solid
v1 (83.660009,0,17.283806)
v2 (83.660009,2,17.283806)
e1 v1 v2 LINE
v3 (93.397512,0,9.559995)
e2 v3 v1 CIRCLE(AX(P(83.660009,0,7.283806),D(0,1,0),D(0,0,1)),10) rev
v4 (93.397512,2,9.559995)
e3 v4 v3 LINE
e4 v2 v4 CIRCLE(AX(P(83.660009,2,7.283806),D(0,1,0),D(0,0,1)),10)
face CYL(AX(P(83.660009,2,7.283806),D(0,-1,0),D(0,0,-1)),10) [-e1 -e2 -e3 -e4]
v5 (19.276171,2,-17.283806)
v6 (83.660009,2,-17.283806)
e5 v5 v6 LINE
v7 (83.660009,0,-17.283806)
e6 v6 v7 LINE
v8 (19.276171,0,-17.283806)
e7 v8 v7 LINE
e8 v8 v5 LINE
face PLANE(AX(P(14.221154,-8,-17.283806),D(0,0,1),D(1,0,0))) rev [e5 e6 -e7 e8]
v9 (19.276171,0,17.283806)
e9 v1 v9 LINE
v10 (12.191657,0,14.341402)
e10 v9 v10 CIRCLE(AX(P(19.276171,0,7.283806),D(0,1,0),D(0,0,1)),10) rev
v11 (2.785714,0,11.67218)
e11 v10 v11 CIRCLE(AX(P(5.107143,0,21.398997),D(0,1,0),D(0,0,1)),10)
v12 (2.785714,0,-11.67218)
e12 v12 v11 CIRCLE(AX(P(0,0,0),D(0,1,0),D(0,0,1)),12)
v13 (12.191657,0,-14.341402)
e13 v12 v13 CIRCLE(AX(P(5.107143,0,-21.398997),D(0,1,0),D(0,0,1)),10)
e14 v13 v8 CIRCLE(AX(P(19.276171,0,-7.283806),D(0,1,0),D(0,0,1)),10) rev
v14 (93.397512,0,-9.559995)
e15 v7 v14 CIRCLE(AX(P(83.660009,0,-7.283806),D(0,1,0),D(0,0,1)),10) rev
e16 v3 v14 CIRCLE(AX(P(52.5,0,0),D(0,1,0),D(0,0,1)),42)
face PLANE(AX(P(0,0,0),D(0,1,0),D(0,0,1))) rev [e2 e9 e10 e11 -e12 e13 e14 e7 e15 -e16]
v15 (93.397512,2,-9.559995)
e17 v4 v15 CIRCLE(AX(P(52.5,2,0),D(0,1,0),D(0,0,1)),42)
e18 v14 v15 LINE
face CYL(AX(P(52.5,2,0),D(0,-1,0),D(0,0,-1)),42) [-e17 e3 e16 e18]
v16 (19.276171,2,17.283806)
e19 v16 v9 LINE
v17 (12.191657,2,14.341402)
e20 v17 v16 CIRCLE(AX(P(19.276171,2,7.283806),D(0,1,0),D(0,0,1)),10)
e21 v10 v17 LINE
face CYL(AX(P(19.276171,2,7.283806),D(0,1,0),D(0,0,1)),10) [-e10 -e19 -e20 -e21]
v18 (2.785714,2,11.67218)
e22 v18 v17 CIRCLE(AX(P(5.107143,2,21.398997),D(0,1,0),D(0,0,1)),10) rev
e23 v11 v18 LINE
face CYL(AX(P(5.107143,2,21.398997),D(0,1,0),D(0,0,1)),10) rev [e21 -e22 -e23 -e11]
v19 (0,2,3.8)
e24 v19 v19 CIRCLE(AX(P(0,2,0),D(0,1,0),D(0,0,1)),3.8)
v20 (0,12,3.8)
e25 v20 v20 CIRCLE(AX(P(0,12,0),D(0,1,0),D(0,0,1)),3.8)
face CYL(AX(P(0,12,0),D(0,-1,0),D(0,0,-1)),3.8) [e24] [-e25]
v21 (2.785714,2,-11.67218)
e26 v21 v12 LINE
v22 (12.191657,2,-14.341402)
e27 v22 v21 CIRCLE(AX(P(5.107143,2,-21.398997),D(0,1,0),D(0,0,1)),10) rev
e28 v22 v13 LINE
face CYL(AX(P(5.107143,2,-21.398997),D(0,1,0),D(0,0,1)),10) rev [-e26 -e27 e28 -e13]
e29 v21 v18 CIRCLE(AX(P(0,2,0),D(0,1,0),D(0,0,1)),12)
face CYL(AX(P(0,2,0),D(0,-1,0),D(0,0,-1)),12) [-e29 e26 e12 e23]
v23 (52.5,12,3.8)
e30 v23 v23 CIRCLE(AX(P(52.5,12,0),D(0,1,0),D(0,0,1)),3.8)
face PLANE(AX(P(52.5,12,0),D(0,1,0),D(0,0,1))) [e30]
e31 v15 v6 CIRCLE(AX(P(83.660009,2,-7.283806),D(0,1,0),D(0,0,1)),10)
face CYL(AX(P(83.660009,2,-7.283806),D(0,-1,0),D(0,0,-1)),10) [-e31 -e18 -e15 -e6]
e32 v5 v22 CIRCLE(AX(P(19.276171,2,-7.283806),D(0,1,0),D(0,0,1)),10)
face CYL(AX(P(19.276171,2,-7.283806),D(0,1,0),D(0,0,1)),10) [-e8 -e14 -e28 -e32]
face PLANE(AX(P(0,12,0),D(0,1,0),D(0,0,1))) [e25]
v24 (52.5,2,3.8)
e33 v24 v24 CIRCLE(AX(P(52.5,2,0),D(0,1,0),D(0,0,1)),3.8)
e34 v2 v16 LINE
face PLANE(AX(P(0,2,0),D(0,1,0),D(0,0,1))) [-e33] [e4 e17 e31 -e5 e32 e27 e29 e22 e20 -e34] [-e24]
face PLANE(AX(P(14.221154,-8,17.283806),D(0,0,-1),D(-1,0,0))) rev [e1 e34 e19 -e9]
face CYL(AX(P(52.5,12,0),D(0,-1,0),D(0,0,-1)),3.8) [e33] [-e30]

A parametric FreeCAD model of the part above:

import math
import FreeCAD as App
import Part
import Sketcher
from FreeCAD import Vector


def edges_at(feature, points):
    """Names of the edges that pass closest to the given points."""
    edges = feature.Shape.Edges
    near = lambda p: min(range(len(edges)), key=lambda i: edges[i].distToShape(Part.Vertex(*p))[0])
    return sorted({f"Edge{near(p) + 1}" for p in points})

doc = App.newDocument("Part")
params = doc.addObject("Spreadsheet::Sheet", "Params")
for row, (alias, value) in enumerate([
    ("sketch1_radius", "42 mm"),
    ("sketch1_radius2", "12 mm"),
    ("pad1_length", "2 mm"),
    ("sketch2_diameter", "7.6 mm"),
    ("pad2_length", "10 mm"),
    ("fillet_radius", "10 mm"),
    ("sketch3_radius", "42 mm"),
    ("pocket1_length", "10 mm"),
    ("fillet2_radius", "10 mm"),
], start=1):
    params.set(f"A{row}", alias)
    params.set(f"B{row}", "=" + value)
    params.setAlias(f"B{row}", alias)

body = doc.addObject("PartDesign::Body", "Body")

sketch1 = doc.addObject("Sketcher::SketchObject", "Sketch")
body.addObject(sketch1)
sketch1.AttachmentSupport = (doc.XZ_Plane, [""])
sketch1.MapMode = "FlatFace"
sketch1.addGeometry([
    Part.ArcOfCircle(Part.Circle(Vector(52, 0, 0), Vector(0, 0, 1), 42), math.radians(-173), math.radians(173)),
    Part.ArcOfCircle(Part.Circle(Vector(0, 0, 0), Vector(0, 0, 1), 12), math.radians(26), math.radians(334)),
], False)
sketch1.addConstraint([
    Sketcher.Constraint("Coincident", 0, 1, 1, 2),
    Sketcher.Constraint("Coincident", 1, 1, 0, 2),
    Sketcher.Constraint("Coincident", 1, 3, -1, 1),
    Sketcher.Constraint("PointOnObject", 0, 3, -1),
    Sketcher.Constraint("Radius", 0, 42.0),
    Sketcher.Constraint("Radius", 1, 12.0),
    Sketcher.Constraint("DistanceX", -1, 1, 0, 3, 52.5),
])
sketch1.setExpression("Constraints[4]", "Params.sketch1_radius")
sketch1.setExpression("Constraints[5]", "Params.sketch1_radius2")
pad1 = doc.addObject("PartDesign::Pad", "Pad")
body.addObject(pad1)
pad1.Profile = sketch1
pad1.setExpression("Length", "Params.pad1_length")
pad1.Reversed = True

sketch2 = doc.addObject("Sketcher::SketchObject", "Sketch001")
body.addObject(sketch2)
sketch2.AttachmentSupport = (doc.XZ_Plane, [""])
sketch2.MapMode = "FlatFace"
sketch2.AttachmentOffset = App.Placement(Vector(0, 0, -2), App.Rotation())
sketch2.addGeometry([
    Part.Circle(Vector(0, 0, 0), Vector(0, 0, 1), 3.8),
    Part.Circle(Vector(52.5, 0, 0), Vector(0, 0, 1), 3.8),
], False)
sketch2.addConstraint([
    Sketcher.Constraint("Coincident", 0, 3, -1, 1),
    Sketcher.Constraint("Equal", 0, 1),
    Sketcher.Constraint("PointOnObject", 1, 3, -1),
    Sketcher.Constraint("Diameter", 0, 7.6),
    Sketcher.Constraint("DistanceX", -1, 1, 1, 3, 52.5),
])
sketch2.setExpression("Constraints[3]", "Params.sketch2_diameter")
pad2 = doc.addObject("PartDesign::Pad", "Pad001")
body.addObject(pad2)
pad2.Profile = sketch2
pad2.setExpression("Length", "Params.pad2_length")
pad2.Reversed = True
doc.recompute()

fillet = doc.addObject("PartDesign::Fillet", "Fillet")
body.addObject(fillet)
fillet.Base = (pad2, edges_at(pad2, [(10.821, 1, 5.186), (10.821, 1, -5.186)]))
fillet.setExpression("Radius", "Params.fillet_radius")

sketch3 = doc.addObject("Sketcher::SketchObject", "Sketch002")
body.addObject(sketch3)
sketch3.AttachmentSupport = (doc.XZ_Plane, [""])
sketch3.MapMode = "FlatFace"
sketch3.AttachmentOffset = App.Placement(Vector(0, 0, 8), App.Rotation())
sketch3.addGeometry([
    Part.LineSegment(Vector(91, 17, 0), Vector(14, 17, 0)),
    Part.ArcOfCircle(Part.Circle(Vector(52, 0, 0), Vector(0, 0, 1), 42), math.radians(24), math.radians(156)),
    Part.LineSegment(Vector(14, -17, 0), Vector(91, -17, 0)),
    Part.ArcOfCircle(Part.Circle(Vector(52, 0, 0), Vector(0, 0, 1), 42), math.radians(-156), math.radians(-24)),
], False)
sketch3.addConstraint([
    Sketcher.Constraint("Coincident", 0, 1, 1, 1),
    Sketcher.Constraint("Coincident", 1, 2, 0, 2),
    Sketcher.Constraint("Coincident", 2, 1, 3, 1),
    Sketcher.Constraint("Coincident", 3, 2, 2, 2),
    Sketcher.Constraint("Horizontal", 0),
    Sketcher.Constraint("Horizontal", 2),
    Sketcher.Constraint("Coincident", 3, 3, 1, 3),
    Sketcher.Constraint("Equal", 1, 3),
    Sketcher.Constraint("Symmetric", 1, 2, 2, 1, -1),
    Sketcher.Constraint("Radius", 1, 42.0),
    Sketcher.Constraint("DistanceX", -1, 1, 1, 3, 52.5),
    Sketcher.Constraint("DistanceX", 0, 2, 0, 1, 76.557692),
])
sketch3.setExpression("Constraints[9]", "Params.sketch3_radius")
pocket1 = doc.addObject("PartDesign::Pocket", "Pocket")
body.addObject(pocket1)
pocket1.Profile = sketch3
pocket1.setExpression("Length", "Params.pocket1_length")
doc.recompute()

fillet2 = doc.addObject("PartDesign::Fillet", "Fillet001")
body.addObject(fillet2)
fillet2.Base = (pocket1, edges_at(pocket1, [
    (14.221, 1, 17.284),
    (14.221, 1, -17.284),
    (90.779, 1, 17.284),
    (90.779, 1, -17.284),
]))
fillet2.setExpression("Radius", "Params.fillet2_radius")

doc.recompute()
